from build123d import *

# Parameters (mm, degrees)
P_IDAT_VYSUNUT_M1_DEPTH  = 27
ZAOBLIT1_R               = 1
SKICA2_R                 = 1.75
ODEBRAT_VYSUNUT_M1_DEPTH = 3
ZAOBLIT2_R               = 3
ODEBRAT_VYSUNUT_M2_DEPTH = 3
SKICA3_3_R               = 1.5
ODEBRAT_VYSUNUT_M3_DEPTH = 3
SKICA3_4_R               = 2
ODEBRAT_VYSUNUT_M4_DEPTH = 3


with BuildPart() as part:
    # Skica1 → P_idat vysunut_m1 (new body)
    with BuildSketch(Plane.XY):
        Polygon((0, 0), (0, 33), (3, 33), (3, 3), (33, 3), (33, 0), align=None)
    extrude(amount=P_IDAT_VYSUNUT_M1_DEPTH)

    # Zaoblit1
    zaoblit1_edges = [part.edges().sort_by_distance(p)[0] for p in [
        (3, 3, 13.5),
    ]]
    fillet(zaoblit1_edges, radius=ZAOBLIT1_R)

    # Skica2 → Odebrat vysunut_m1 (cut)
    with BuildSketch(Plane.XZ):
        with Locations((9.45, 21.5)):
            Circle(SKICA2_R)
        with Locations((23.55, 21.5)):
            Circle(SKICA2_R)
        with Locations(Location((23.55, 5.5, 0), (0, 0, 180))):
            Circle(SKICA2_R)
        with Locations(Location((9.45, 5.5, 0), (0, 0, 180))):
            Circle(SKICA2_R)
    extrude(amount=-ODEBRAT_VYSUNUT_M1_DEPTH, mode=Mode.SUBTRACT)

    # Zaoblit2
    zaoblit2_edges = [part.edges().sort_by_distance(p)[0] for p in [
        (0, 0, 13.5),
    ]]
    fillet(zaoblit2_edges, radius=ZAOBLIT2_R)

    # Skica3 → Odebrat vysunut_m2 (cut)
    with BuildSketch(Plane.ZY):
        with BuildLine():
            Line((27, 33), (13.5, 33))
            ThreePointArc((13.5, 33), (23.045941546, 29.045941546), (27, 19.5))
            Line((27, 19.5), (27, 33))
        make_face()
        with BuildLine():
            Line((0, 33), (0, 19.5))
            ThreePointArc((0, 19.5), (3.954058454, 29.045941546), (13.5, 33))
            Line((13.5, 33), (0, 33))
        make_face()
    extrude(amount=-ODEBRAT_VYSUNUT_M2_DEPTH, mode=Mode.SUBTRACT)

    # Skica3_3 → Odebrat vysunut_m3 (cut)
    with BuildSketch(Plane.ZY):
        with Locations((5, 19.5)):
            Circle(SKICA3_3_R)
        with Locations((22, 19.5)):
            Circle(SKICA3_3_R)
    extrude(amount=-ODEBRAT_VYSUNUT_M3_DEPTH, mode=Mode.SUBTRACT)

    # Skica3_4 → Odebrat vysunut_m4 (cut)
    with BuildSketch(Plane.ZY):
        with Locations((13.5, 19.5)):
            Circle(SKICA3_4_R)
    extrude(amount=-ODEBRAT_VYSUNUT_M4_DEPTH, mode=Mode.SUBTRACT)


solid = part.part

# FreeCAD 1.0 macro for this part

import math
import FreeCAD as App
import Part
import Sketcher
from FreeCAD import Vector
Q = App.Units.Quantity


def edges_at(feature, points):
    """Names of the edges that pass closest to the given points."""
    edges = feature.Shape.Edges
    near = lambda p: min(range(len(edges)), key=lambda i: edges[i].distToShape(Part.Vertex(*p))[0])
    return sorted({f"Edge{near(p) + 1}" for p in points})


def add_polygon(sketch, points):
    """Adds a closed chain of lines whose ends are joined by coincident constraints."""
    first, n = sketch.GeometryCount, len(points)
    for a, b in zip(points, points[1:] + points[:1]):
        sketch.addGeometry(Part.LineSegment(App.Vector(*a, 0), App.Vector(*b, 0)), False)
    for i in range(n):
        sketch.addConstraint(Sketcher.Constraint("Coincident", first + i, 2, first + (i + 1) % n, 1))

doc = App.newDocument("Part")
params = doc.addObject("Spreadsheet::Sheet", "Params")
for row, (alias, value) in enumerate([
    ("sketch1_width", "33 mm"),
    ("sketch1_width2", "30 mm"),
    ("pad1_length", "27 mm"),
    ("fillet_radius", "1 mm"),
    ("sketch2_diameter", "3.5 mm"),
    ("pocket1_length", "3 mm"),
    ("fillet2_radius", "3 mm"),
    ("sketch3_radius", "13.5 mm"),
    ("pocket2_length", "3 mm"),
    ("sketch4_diameter", "3 mm"),
    ("pocket3_length", "3 mm"),
    ("sketch5_diameter", "4 mm"),
    ("pocket4_length", "3 mm"),
], start=1):
    params.set(f"A{row}", alias)
    params.set(f"B{row}", "=" + value)
    params.setAlias(f"B{row}", alias)

body = doc.addObject("PartDesign::Body", "Body")

sketch1 = body.newObject("Sketcher::SketchObject", "Sketch")
sketch1.AttachmentSupport = (doc.getObject("XY_Plane"), [""])
sketch1.MapMode = "FlatFace"
add_polygon(sketch1, [(0, 33), (0, 0), (33, 0), (33, 3), (3, 3), (3, 33)])
sketch1.addConstraint(Sketcher.Constraint("Vertical", 0))
sketch1.addConstraint(Sketcher.Constraint("Horizontal", 1))
sketch1.addConstraint(Sketcher.Constraint("Vertical", 2))
sketch1.addConstraint(Sketcher.Constraint("Horizontal", 3))
sketch1.addConstraint(Sketcher.Constraint("Vertical", 4))
sketch1.addConstraint(Sketcher.Constraint("Horizontal", 5))
sketch1.addConstraint(Sketcher.Constraint("Coincident", 0, 2, -1, 1))
sketch1.addConstraint(Sketcher.Constraint("Equal", 1, 0))
sketch1.addConstraint(Sketcher.Constraint("Equal", 5, 2))
sketch1.addConstraint(Sketcher.Constraint("DistanceX", 1, 1, 1, 2, Q("33 mm")))
sketch1.addConstraint(Sketcher.Constraint("DistanceX", 3, 2, 3, 1, Q("30 mm")))
sketch1.setExpression("Constraints[15]", "Params.sketch1_width")
sketch1.setExpression("Constraints[16]", "Params.sketch1_width2")
pad1 = body.newObject("PartDesign::Pad", "Pad")
pad1.Profile = sketch1
pad1.setExpression("Length", "Params.pad1_length")
doc.recompute()

fillet = body.newObject("PartDesign::Fillet", "Fillet")
fillet.Base = (pad1, edges_at(pad1, [(3, 3, 13.5)]))
fillet.setExpression("Radius", "Params.fillet_radius")

sketch2 = body.newObject("Sketcher::SketchObject", "Sketch001")
sketch2.AttachmentSupport = (doc.getObject("XZ_Plane"), [""])
sketch2.MapMode = "FlatFace"
sketch2.addGeometry(Part.Circle(Vector(9.45, 21.5, 0), Vector(0, 0, 1), 1.75), False)
sketch2.addGeometry(Part.Circle(Vector(23.55, 21.5, 0), Vector(0, 0, 1), 1.75), False)
sketch2.addGeometry(Part.Circle(Vector(23.55, 5.5, 0), Vector(0, 0, 1), 1.75), False)
sketch2.addGeometry(Part.Circle(Vector(9.45, 5.5, 0), Vector(0, 0, 1), 1.75), False)
sketch2.addConstraint(Sketcher.Constraint("Equal", 0, 1))
sketch2.addConstraint(Sketcher.Constraint("Equal", 1, 2))
sketch2.addConstraint(Sketcher.Constraint("Equal", 2, 3))
sketch2.addConstraint(Sketcher.Constraint("Horizontal", 0, 3, 1, 3))
sketch2.addConstraint(Sketcher.Constraint("Horizontal", 2, 3, 3, 3))
sketch2.addConstraint(Sketcher.Constraint("Vertical", 1, 3, 2, 3))
sketch2.addConstraint(Sketcher.Constraint("Vertical", 0, 3, 3, 3))
sketch2.addConstraint(Sketcher.Constraint("Diameter", 0, Q("3.5 mm")))
sketch2.addConstraint(Sketcher.Constraint("DistanceY", 2, 3, 1, 3, Q("16 mm")))
sketch2.addConstraint(Sketcher.Constraint("DistanceY", -1, 1, 0, 3, Q("21.5 mm")))
sketch2.addConstraint(Sketcher.Constraint("DistanceX", 0, 3, 1, 3, Q("14.1 mm")))
sketch2.addConstraint(Sketcher.Constraint("DistanceX", -1, 1, 0, 3, Q("9.45 mm")))
sketch2.setExpression("Constraints[7]", "Params.sketch2_diameter")
pocket1 = body.newObject("PartDesign::Pocket", "Pocket")
pocket1.Profile = sketch2
pocket1.setExpression("Length", "Params.pocket1_length")
doc.recompute()

fillet2 = body.newObject("PartDesign::Fillet", "Fillet001")
fillet2.Base = (pocket1, edges_at(pocket1, [(0, 0, 13.5)]))
fillet2.setExpression("Radius", "Params.fillet2_radius")

sketch3 = body.newObject("Sketcher::SketchObject", "Sketch002")
sketch3.AttachmentSupport = (doc.getObject("YZ_Plane"), [""])
sketch3.MapMode = "FlatFace"
sketch3.addGeometry(Part.LineSegment(Vector(33, 27, 0), Vector(33, 13.5, 0)), False)
sketch3.addGeometry(Part.ArcOfCircle(Part.Circle(Vector(19.5, 13.5, 0), Vector(0, 0, 1), 13.5), math.radians(0), math.radians(90)), False)
sketch3.addGeometry(Part.LineSegment(Vector(19.5, 27, 0), Vector(33, 27, 0)), False)
sketch3.addGeometry(Part.LineSegment(Vector(33, 0, 0), Vector(19.5, 0, 0)), False)
sketch3.addGeometry(Part.ArcOfCircle(Part.Circle(Vector(19.5, 13.5, 0), Vector(0, 0, 1), 13.5), math.radians(-90), math.radians(0)), False)
sketch3.addGeometry(Part.LineSegment(Vector(33, 13.5, 0), Vector(33, 0, 0)), False)
sketch3.addConstraint(Sketcher.Constraint("Tangent", 0, 2, 1, 1))
sketch3.addConstraint(Sketcher.Constraint("Tangent", 1, 2, 2, 1))
sketch3.addConstraint(Sketcher.Constraint("Coincident", 2, 2, 0, 1))
sketch3.addConstraint(Sketcher.Constraint("Tangent", 3, 2, 4, 1))
sketch3.addConstraint(Sketcher.Constraint("Tangent", 4, 2, 5, 1))
sketch3.addConstraint(Sketcher.Constraint("Coincident", 5, 2, 3, 1))
sketch3.addConstraint(Sketcher.Constraint("Vertical", 0))
sketch3.addConstraint(Sketcher.Constraint("Horizontal", 2))
sketch3.addConstraint(Sketcher.Constraint("Horizontal", 3))
sketch3.addConstraint(Sketcher.Constraint("Vertical", 5))
sketch3.addConstraint(Sketcher.Constraint("Coincident", 4, 3, 1, 3))
sketch3.addConstraint(Sketcher.Constraint("Equal", 1, 4))
sketch3.addConstraint(Sketcher.Constraint("PointOnObject", 3, 2, -1))
sketch3.addConstraint(Sketcher.Constraint("Radius", 1, Q("13.5 mm")))
sketch3.addConstraint(Sketcher.Constraint("DistanceX", -1, 1, 0, 2, Q("33 mm")))
sketch3.setExpression("Constraints[13]", "Params.sketch3_radius")
pocket2 = body.newObject("PartDesign::Pocket", "Pocket001")
pocket2.Profile = sketch3
pocket2.setExpression("Length", "Params.pocket2_length")
pocket2.Reversed = True

sketch4 = body.newObject("Sketcher::SketchObject", "Sketch003")
sketch4.AttachmentSupport = (doc.getObject("YZ_Plane"), [""])
sketch4.MapMode = "FlatFace"
sketch4.addGeometry(Part.Circle(Vector(19.5, 5, 0), Vector(0, 0, 1), 1.5), False)
sketch4.addGeometry(Part.Circle(Vector(19.5, 22, 0), Vector(0, 0, 1), 1.5), False)
sketch4.addConstraint(Sketcher.Constraint("Equal", 0, 1))
sketch4.addConstraint(Sketcher.Constraint("Vertical", 0, 3, 1, 3))
sketch4.addConstraint(Sketcher.Constraint("Diameter", 0, Q("3 mm")))
sketch4.addConstraint(Sketcher.Constraint("DistanceY", -1, 1, 0, 3, Q("5 mm")))
sketch4.addConstraint(Sketcher.Constraint("DistanceY", -1, 1, 1, 3, Q("22 mm")))
sketch4.addConstraint(Sketcher.Constraint("DistanceX", -1, 1, 0, 3, Q("19.5 mm")))
sketch4.setExpression("Constraints[2]", "Params.sketch4_diameter")
pocket3 = body.newObject("PartDesign::Pocket", "Pocket002")
pocket3.Profile = sketch4
pocket3.setExpression("Length", "Params.pocket3_length")
pocket3.Reversed = True

sketch5 = body.newObject("Sketcher::SketchObject", "Sketch004")
sketch5.AttachmentSupport = (doc.getObject("YZ_Plane"), [""])
sketch5.MapMode = "FlatFace"
sketch5.addGeometry(Part.Circle(Vector(19.5, 13.5, 0), Vector(0, 0, 1), 2), False)
sketch5.addConstraint(Sketcher.Constraint("Diameter", 0, Q("4 mm")))
sketch5.addConstraint(Sketcher.Constraint("DistanceX", -1, 1, 0, 3, Q("19.5 mm")))
sketch5.addConstraint(Sketcher.Constraint("DistanceY", -1, 1, 0, 3, Q("13.5 mm")))
sketch5.setExpression("Constraints[0]", "Params.sketch5_diameter")
pocket4 = body.newObject("PartDesign::Pocket", "Pocket003")
pocket4.Profile = sketch5
pocket4.setExpression("Length", "Params.pocket4_length")
pocket4.Reversed = True

doc.recompute()
